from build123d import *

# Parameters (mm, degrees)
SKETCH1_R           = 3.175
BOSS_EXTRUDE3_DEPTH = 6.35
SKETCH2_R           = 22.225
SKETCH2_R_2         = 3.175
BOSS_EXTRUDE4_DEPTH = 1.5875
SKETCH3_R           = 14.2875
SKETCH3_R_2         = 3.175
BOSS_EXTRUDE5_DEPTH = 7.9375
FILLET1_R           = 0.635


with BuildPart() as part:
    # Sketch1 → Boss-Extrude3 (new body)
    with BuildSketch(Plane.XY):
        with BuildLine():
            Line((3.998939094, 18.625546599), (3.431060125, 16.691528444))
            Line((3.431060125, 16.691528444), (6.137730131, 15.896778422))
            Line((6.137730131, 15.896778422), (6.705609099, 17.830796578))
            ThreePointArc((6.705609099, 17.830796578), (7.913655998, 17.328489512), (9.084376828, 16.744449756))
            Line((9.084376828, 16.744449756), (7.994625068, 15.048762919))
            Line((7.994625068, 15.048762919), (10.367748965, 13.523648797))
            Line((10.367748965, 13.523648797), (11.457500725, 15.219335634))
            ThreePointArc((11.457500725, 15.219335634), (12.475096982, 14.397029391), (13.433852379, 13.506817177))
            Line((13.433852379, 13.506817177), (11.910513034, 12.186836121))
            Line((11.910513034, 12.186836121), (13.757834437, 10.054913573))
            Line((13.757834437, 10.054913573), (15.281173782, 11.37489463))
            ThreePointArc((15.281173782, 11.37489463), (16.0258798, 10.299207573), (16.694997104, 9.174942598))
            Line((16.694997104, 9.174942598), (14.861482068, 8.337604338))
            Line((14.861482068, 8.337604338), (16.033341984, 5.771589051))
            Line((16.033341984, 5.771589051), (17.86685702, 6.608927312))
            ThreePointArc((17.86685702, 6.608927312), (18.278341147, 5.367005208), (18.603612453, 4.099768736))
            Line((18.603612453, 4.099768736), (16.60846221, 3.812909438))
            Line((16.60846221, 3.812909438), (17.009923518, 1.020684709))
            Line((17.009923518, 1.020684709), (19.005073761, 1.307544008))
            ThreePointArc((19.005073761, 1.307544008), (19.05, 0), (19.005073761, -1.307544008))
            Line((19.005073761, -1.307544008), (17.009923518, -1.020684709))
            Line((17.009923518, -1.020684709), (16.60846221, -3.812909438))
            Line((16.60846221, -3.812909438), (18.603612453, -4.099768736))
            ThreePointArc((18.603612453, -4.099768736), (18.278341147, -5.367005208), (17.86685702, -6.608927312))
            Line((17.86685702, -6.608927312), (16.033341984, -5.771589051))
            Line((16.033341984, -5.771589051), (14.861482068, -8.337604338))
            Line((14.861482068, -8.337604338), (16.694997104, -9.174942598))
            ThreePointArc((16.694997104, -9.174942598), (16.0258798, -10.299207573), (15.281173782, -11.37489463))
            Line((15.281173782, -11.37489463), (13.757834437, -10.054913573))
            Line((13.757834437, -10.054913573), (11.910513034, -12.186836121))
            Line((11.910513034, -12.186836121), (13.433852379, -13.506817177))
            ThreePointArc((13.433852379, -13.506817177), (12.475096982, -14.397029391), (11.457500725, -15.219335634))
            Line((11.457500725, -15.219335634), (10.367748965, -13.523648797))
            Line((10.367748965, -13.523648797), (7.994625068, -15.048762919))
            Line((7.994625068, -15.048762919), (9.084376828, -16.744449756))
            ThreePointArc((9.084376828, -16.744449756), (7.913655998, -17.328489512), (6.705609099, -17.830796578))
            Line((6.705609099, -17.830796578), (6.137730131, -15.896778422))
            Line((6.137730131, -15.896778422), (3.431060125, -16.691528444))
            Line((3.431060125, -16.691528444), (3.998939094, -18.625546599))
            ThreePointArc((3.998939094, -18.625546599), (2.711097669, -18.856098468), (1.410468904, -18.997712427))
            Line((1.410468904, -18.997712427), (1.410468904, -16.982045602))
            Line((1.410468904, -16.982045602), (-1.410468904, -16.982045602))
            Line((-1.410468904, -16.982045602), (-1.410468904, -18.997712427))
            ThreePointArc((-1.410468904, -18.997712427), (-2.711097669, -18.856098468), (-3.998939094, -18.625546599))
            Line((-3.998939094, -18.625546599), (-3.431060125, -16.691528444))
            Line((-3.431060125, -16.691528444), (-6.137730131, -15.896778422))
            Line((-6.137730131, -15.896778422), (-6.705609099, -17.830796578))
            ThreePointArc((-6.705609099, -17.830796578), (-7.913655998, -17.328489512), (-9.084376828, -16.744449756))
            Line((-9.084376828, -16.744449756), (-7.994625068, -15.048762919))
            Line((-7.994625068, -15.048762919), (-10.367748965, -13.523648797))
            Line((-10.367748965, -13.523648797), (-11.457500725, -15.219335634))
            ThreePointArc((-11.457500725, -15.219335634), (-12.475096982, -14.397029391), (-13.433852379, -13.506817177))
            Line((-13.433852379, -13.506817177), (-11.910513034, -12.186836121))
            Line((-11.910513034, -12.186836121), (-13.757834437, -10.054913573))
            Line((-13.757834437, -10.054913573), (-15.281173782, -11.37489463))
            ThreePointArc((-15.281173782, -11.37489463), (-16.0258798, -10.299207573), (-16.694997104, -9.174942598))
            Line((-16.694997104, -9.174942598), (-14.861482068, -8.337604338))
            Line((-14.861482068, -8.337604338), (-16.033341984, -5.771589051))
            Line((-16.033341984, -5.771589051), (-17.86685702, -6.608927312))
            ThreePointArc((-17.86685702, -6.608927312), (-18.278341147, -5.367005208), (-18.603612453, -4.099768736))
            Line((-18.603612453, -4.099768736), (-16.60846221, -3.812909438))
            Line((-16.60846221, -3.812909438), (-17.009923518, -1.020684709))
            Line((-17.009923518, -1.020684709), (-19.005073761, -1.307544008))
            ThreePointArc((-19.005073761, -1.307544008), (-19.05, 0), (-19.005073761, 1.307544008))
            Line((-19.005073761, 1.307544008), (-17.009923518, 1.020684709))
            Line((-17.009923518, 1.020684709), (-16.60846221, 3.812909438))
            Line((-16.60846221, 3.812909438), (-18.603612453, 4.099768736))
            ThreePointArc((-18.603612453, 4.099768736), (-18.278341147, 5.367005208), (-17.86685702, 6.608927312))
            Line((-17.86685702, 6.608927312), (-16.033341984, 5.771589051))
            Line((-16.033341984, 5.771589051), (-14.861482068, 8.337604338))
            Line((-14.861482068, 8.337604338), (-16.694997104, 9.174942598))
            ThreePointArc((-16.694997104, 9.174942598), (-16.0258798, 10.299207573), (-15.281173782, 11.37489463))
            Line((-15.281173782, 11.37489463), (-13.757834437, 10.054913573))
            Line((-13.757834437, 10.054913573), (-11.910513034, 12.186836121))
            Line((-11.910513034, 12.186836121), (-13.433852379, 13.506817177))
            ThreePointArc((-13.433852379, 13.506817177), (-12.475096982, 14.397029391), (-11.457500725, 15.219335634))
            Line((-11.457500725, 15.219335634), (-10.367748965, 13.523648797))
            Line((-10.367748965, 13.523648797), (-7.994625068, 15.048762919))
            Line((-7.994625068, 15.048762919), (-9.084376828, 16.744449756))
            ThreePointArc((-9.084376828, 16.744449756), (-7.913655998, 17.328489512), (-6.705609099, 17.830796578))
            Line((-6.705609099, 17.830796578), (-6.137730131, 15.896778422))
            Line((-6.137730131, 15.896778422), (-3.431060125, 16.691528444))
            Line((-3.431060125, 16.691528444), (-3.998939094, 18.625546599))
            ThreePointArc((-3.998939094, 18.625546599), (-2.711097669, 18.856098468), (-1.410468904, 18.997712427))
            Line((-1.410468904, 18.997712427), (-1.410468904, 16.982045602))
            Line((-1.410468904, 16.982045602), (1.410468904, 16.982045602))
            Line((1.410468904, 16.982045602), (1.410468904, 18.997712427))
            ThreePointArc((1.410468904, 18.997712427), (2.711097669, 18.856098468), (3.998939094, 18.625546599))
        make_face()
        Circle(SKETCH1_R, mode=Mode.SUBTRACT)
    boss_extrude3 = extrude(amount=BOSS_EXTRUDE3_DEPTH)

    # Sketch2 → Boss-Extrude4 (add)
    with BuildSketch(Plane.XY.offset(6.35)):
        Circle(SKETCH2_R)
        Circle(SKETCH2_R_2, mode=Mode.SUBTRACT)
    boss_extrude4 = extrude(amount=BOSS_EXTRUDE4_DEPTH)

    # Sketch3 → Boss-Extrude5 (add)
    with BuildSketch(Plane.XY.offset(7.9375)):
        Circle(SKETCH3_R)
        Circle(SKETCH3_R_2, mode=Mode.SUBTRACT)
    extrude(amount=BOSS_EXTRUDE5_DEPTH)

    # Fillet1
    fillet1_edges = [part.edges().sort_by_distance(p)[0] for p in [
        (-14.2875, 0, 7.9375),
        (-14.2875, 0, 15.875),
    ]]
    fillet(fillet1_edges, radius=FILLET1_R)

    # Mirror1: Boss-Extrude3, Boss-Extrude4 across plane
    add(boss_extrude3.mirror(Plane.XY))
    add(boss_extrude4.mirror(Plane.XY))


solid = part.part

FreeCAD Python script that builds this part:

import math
import FreeCAD as App
import Part
import Sketcher
Q = App.Units.Quantity


def edges_at(feature, points):
    """Names of the edges that pass closest to the given points."""
    edges = feature.Shape.Edges
    near = lambda p: min(range(len(edges)), key=lambda i: edges[i].distToShape(Part.Vertex(*p))[0])
    return sorted({f"Edge{near(p) + 1}" for p in points})

doc = App.newDocument("Part")
body = doc.addObject("PartDesign::Body", "Body")

# Sketch on XY plane
sketch1 = body.newObject("Sketcher::SketchObject", "Sketch")
sketch1.AttachmentSupport = (doc.getObject("XY_Plane"), [""])
sketch1.MapMode = "FlatFace"
sketch1.addGeometry([
    Part.LineSegment(App.Vector(3.43106, 16.691528, 0), App.Vector(3.998939, 18.625547, 0)),  # 0
    Part.ArcOfCircle(Part.Circle(App.Vector(0, 0, 0), App.Vector(0, 0, 1), 19.05), math.radians(77.882449), math.radians(85.753914)),  # 1
    Part.LineSegment(App.Vector(1.410469, 18.997712, 0), App.Vector(1.410469, 16.982046, 0)),  # 2
    Part.LineSegment(App.Vector(1.410469, 16.982046, 0), App.Vector(-1.410469, 16.982046, 0)),  # 3
    Part.LineSegment(App.Vector(-1.410469, 16.982046, 0), App.Vector(-1.410469, 18.997712, 0)),  # 4
    Part.ArcOfCircle(Part.Circle(App.Vector(0, 0, 0), App.Vector(0, 0, 1), 19.05), math.radians(94.246086), math.radians(102.117551)),  # 5
    Part.LineSegment(App.Vector(-3.998939, 18.625547, 0), App.Vector(-3.43106, 16.691528, 0)),  # 6
    Part.LineSegment(App.Vector(-3.43106, 16.691528, 0), App.Vector(-6.13773, 15.896778, 0)),  # 7
    Part.LineSegment(App.Vector(-6.13773, 15.896778, 0), App.Vector(-6.705609, 17.830797, 0)),  # 8
    Part.ArcOfCircle(Part.Circle(App.Vector(0, 0, 0), App.Vector(0, 0, 1), 19.05), math.radians(110.609722), math.radians(118.481187)),  # 9
    Part.LineSegment(App.Vector(-9.084377, 16.74445, 0), App.Vector(-7.994625, 15.048763, 0)),  # 10
    Part.LineSegment(App.Vector(-7.994625, 15.048763, 0), App.Vector(-10.367749, 13.523649, 0)),  # 11
    Part.LineSegment(App.Vector(-10.367749, 13.523649, 0), App.Vector(-11.457501, 15.219336, 0)),  # 12
    Part.ArcOfCircle(Part.Circle(App.Vector(0, 0, 0), App.Vector(0, 0, 1), 19.05), math.radians(126.973359), math.radians(134.844823)),  # 13
    Part.LineSegment(App.Vector(-13.433852, 13.506817, 0), App.Vector(-11.910513, 12.186836, 0)),  # 14
    Part.LineSegment(App.Vector(-11.910513, 12.186836, 0), App.Vector(-13.757834, 10.054914, 0)),  # 15
    Part.LineSegment(App.Vector(-13.757834, 10.054914, 0), App.Vector(-15.281174, 11.374895, 0)),  # 16
    Part.ArcOfCircle(Part.Circle(App.Vector(0, 0, 0), App.Vector(0, 0, 1), 19.05), math.radians(143.336995), math.radians(151.20846)),  # 17
    Part.LineSegment(App.Vector(-16.694997, 9.174943, 0), App.Vector(-14.861482, 8.337604, 0)),  # 18
    Part.LineSegment(App.Vector(-14.861482, 8.337604, 0), App.Vector(-16.033342, 5.771589, 0)),  # 19
    Part.LineSegment(App.Vector(-16.033342, 5.771589, 0), App.Vector(-17.866857, 6.608927, 0)),  # 20
    Part.ArcOfCircle(Part.Circle(App.Vector(0, 0, 0), App.Vector(0, 0, 1), 19.05), math.radians(159.700631), math.radians(167.572096)),  # 21
    Part.LineSegment(App.Vector(-18.603612, 4.099769, 0), App.Vector(-16.608462, 3.812909, 0)),  # 22
    Part.LineSegment(App.Vector(-16.608462, 3.812909, 0), App.Vector(-17.009924, 1.020685, 0)),  # 23
    Part.LineSegment(App.Vector(-17.009924, 1.020685, 0), App.Vector(-19.005074, 1.307544, 0)),  # 24
    Part.ArcOfCircle(Part.Circle(App.Vector(0, 0, 0), App.Vector(0, 0, 1), 19.05), math.radians(176.064268), math.radians(183.935732)),  # 25
    Part.LineSegment(App.Vector(-19.005074, -1.307544, 0), App.Vector(-17.009924, -1.020685, 0)),  # 26
    Part.LineSegment(App.Vector(-17.009924, -1.020685, 0), App.Vector(-16.608462, -3.812909, 0)),  # 27
    Part.LineSegment(App.Vector(-16.608462, -3.812909, 0), App.Vector(-18.603612, -4.099769, 0)),  # 28
    Part.ArcOfCircle(Part.Circle(App.Vector(0, 0, 0), App.Vector(0, 0, 1), 19.05), math.radians(-167.572096), math.radians(-159.700631)),  # 29
    Part.LineSegment(App.Vector(-17.866857, -6.608927, 0), App.Vector(-16.033342, -5.771589, 0)),  # 30
    Part.LineSegment(App.Vector(-16.033342, -5.771589, 0), App.Vector(-14.861482, -8.337604, 0)),  # 31
    Part.LineSegment(App.Vector(-14.861482, -8.337604, 0), App.Vector(-16.694997, -9.174943, 0)),  # 32
    Part.ArcOfCircle(Part.Circle(App.Vector(0, 0, 0), App.Vector(0, 0, 1), 19.05), math.radians(-151.20846), math.radians(-143.336995)),  # 33
    Part.LineSegment(App.Vector(-15.281174, -11.374895, 0), App.Vector(-13.757834, -10.054914, 0)),  # 34
    Part.LineSegment(App.Vector(-13.757834, -10.054914, 0), App.Vector(-11.910513, -12.186836, 0)),  # 35
    Part.LineSegment(App.Vector(-11.910513, -12.186836, 0), App.Vector(-13.433852, -13.506817, 0)),  # 36
    Part.ArcOfCircle(Part.Circle(App.Vector(0, 0, 0), App.Vector(0, 0, 1), 19.05), math.radians(-134.844823), math.radians(-126.973359)),  # 37
    Part.LineSegment(App.Vector(-11.457501, -15.219336, 0), App.Vector(-10.367749, -13.523649, 0)),  # 38
    Part.LineSegment(App.Vector(-10.367749, -13.523649, 0), App.Vector(-7.994625, -15.048763, 0)),  # 39
    Part.LineSegment(App.Vector(-7.994625, -15.048763, 0), App.Vector(-9.084377, -16.74445, 0)),  # 40
    Part.ArcOfCircle(Part.Circle(App.Vector(0, 0, 0), App.Vector(0, 0, 1), 19.05), math.radians(-118.481187), math.radians(-110.609722)),  # 41
    Part.LineSegment(App.Vector(-6.705609, -17.830797, 0), App.Vector(-6.13773, -15.896778, 0)),  # 42
    Part.LineSegment(App.Vector(-6.13773, -15.896778, 0), App.Vector(-3.43106, -16.691528, 0)),  # 43
    Part.LineSegment(App.Vector(-3.43106, -16.691528, 0), App.Vector(-3.998939, -18.625547, 0)),  # 44
    Part.ArcOfCircle(Part.Circle(App.Vector(0, 0, 0), App.Vector(0, 0, 1), 19.05), math.radians(-102.117551), math.radians(-94.246086)),  # 45
    Part.LineSegment(App.Vector(-1.410469, -18.997712, 0), App.Vector(-1.410469, -16.982046, 0)),  # 46
    Part.LineSegment(App.Vector(-1.410469, -16.982046, 0), App.Vector(1.410469, -16.982046, 0)),  # 47
    Part.LineSegment(App.Vector(1.410469, -16.982046, 0), App.Vector(1.410469, -18.997712, 0)),  # 48
    Part.ArcOfCircle(Part.Circle(App.Vector(0, 0, 0), App.Vector(0, 0, 1), 19.05), math.radians(-85.753914), math.radians(-77.882449)),  # 49
    Part.LineSegment(App.Vector(3.998939, -18.625547, 0), App.Vector(3.43106, -16.691528, 0)),  # 50
    Part.LineSegment(App.Vector(3.43106, -16.691528, 0), App.Vector(6.13773, -15.896778, 0)),  # 51
    Part.LineSegment(App.Vector(6.13773, -15.896778, 0), App.Vector(6.705609, -17.830797, 0)),  # 52
    Part.ArcOfCircle(Part.Circle(App.Vector(0, 0, 0), App.Vector(0, 0, 1), 19.05), math.radians(-69.390278), math.radians(-61.518813)),  # 53
    Part.LineSegment(App.Vector(9.084377, -16.74445, 0), App.Vector(7.994625, -15.048763, 0)),  # 54
    Part.LineSegment(App.Vector(7.994625, -15.048763, 0), App.Vector(10.367749, -13.523649, 0)),  # 55
    Part.LineSegment(App.Vector(10.367749, -13.523649, 0), App.Vector(11.457501, -15.219336, 0)),  # 56
    Part.ArcOfCircle(Part.Circle(App.Vector(0, 0, 0), App.Vector(0, 0, 1), 19.05), math.radians(-53.026641), math.radians(-45.155177)),  # 57
    Part.LineSegment(App.Vector(13.433852, -13.506817, 0), App.Vector(11.910513, -12.186836, 0)),  # 58
    Part.LineSegment(App.Vector(11.910513, -12.186836, 0), App.Vector(13.757834, -10.054914, 0)),  # 59
    Part.LineSegment(App.Vector(13.757834, -10.054914, 0), App.Vector(15.281174, -11.374895, 0)),  # 60
    Part.ArcOfCircle(Part.Circle(App.Vector(0, 0, 0), App.Vector(0, 0, 1), 19.05), math.radians(-36.663005), math.radians(-28.79154)),  # 61
    Part.LineSegment(App.Vector(16.694997, -9.174943, 0), App.Vector(14.861482, -8.337604, 0)),  # 62
    Part.LineSegment(App.Vector(14.861482, -8.337604, 0), App.Vector(16.033342, -5.771589, 0)),  # 63
    Part.LineSegment(App.Vector(16.033342, -5.771589, 0), App.Vector(17.866857, -6.608927, 0)),  # 64
    Part.ArcOfCircle(Part.Circle(App.Vector(0, 0, 0), App.Vector(0, 0, 1), 19.05), math.radians(-20.299369), math.radians(-12.427904)),  # 65
    Part.LineSegment(App.Vector(18.603612, -4.099769, 0), App.Vector(16.608462, -3.812909, 0)),  # 66
    Part.LineSegment(App.Vector(16.608462, -3.812909, 0), App.Vector(17.009924, -1.020685, 0)),  # 67
    Part.LineSegment(App.Vector(17.009924, -1.020685, 0), App.Vector(19.005074, -1.307544, 0)),  # 68
    Part.ArcOfCircle(Part.Circle(App.Vector(0, 0, 0), App.Vector(0, 0, 1), 19.05), math.radians(-3.935732), math.radians(3.935732)),  # 69
    Part.LineSegment(App.Vector(19.005074, 1.307544, 0), App.Vector(17.009924, 1.020685, 0)),  # 70
    Part.LineSegment(App.Vector(17.009924, 1.020685, 0), App.Vector(16.608462, 3.812909, 0)),  # 71
    Part.LineSegment(App.Vector(16.608462, 3.812909, 0), App.Vector(18.603612, 4.099769, 0)),  # 72
    Part.ArcOfCircle(Part.Circle(App.Vector(0, 0, 0), App.Vector(0, 0, 1), 19.05), math.radians(12.427904), math.radians(20.299369)),  # 73
    Part.LineSegment(App.Vector(17.866857, 6.608927, 0), App.Vector(16.033342, 5.771589, 0)),  # 74
    Part.LineSegment(App.Vector(16.033342, 5.771589, 0), App.Vector(14.861482, 8.337604, 0)),  # 75
    Part.LineSegment(App.Vector(14.861482, 8.337604, 0), App.Vector(16.694997, 9.174943, 0)),  # 76
    Part.ArcOfCircle(Part.Circle(App.Vector(0, 0, 0), App.Vector(0, 0, 1), 19.05), math.radians(28.79154), math.radians(36.663005)),  # 77
    Part.LineSegment(App.Vector(15.281174, 11.374895, 0), App.Vector(13.757834, 10.054914, 0)),  # 78
    Part.LineSegment(App.Vector(13.757834, 10.054914, 0), App.Vector(11.910513, 12.186836, 0)),  # 79
    Part.LineSegment(App.Vector(11.910513, 12.186836, 0), App.Vector(13.433852, 13.506817, 0)),  # 80
    Part.ArcOfCircle(Part.Circle(App.Vector(0, 0, 0), App.Vector(0, 0, 1), 19.05), math.radians(45.155177), math.radians(53.026641)),  # 81
    Part.LineSegment(App.Vector(11.457501, 15.219336, 0), App.Vector(10.367749, 13.523649, 0)),  # 82
    Part.LineSegment(App.Vector(10.367749, 13.523649, 0), App.Vector(7.994625, 15.048763, 0)),  # 83
    Part.LineSegment(App.Vector(7.994625, 15.048763, 0), App.Vector(9.084377, 16.74445, 0)),  # 84
    Part.ArcOfCircle(Part.Circle(App.Vector(0, 0, 0), App.Vector(0, 0, 1), 19.05), math.radians(61.518813), math.radians(69.390278)),  # 85
    Part.LineSegment(App.Vector(6.705609, 17.830797, 0), App.Vector(6.13773, 15.896778, 0)),  # 86
    Part.LineSegment(App.Vector(6.13773, 15.896778, 0), App.Vector(3.43106, 16.691528, 0)),  # 87
    Part.Circle(App.Vector(0, 0, 0), App.Vector(0, 0, 1), 3.175),  # 88
], False)
sketch1.addConstraint([
    Sketcher.Constraint("Coincident", 0, 2, 1, 1),
    Sketcher.Constraint("Coincident", 1, 2, 2, 1),
    Sketcher.Constraint("Coincident", 2, 2, 3, 1),
    Sketcher.Constraint("Coincident", 3, 2, 4, 1),
    Sketcher.Constraint("Coincident", 4, 2, 5, 1),
    Sketcher.Constraint("Coincident", 5, 2, 6, 1),
    Sketcher.Constraint("Coincident", 6, 2, 7, 1),
    Sketcher.Constraint("Coincident", 7, 2, 8, 1),
    Sketcher.Constraint("Coincident", 8, 2, 9, 1),
    Sketcher.Constraint("Coincident", 9, 2, 10, 1),
    Sketcher.Constraint("Coincident", 10, 2, 11, 1),
    Sketcher.Constraint("Coincident", 11, 2, 12, 1),
    Sketcher.Constraint("Coincident", 12, 2, 13, 1),
    Sketcher.Constraint("Coincident", 13, 2, 14, 1),
    Sketcher.Constraint("Coincident", 14, 2, 15, 1),
    Sketcher.Constraint("Coincident", 15, 2, 16, 1),
    Sketcher.Constraint("Coincident", 16, 2, 17, 1),
    Sketcher.Constraint("Coincident", 17, 2, 18, 1),
    Sketcher.Constraint("Coincident", 18, 2, 19, 1),
    Sketcher.Constraint("Coincident", 19, 2, 20, 1),
    Sketcher.Constraint("Coincident", 20, 2, 21, 1),
    Sketcher.Constraint("Coincident", 21, 2, 22, 1),
    Sketcher.Constraint("Coincident", 22, 2, 23, 1),
    Sketcher.Constraint("Coincident", 23, 2, 24, 1),
    Sketcher.Constraint("Coincident", 24, 2, 25, 1),
    Sketcher.Constraint("Coincident", 25, 2, 26, 1),
    Sketcher.Constraint("Coincident", 26, 2, 27, 1),
    Sketcher.Constraint("Coincident", 27, 2, 28, 1),
    Sketcher.Constraint("Coincident", 28, 2, 29, 1),
    Sketcher.Constraint("Coincident", 29, 2, 30, 1),
    Sketcher.Constraint("Coincident", 30, 2, 31, 1),
    Sketcher.Constraint("Coincident", 31, 2, 32, 1),
    Sketcher.Constraint("Coincident", 32, 2, 33, 1),
    Sketcher.Constraint("Coincident", 33, 2, 34, 1),
    Sketcher.Constraint("Coincident", 34, 2, 35, 1),
    Sketcher.Constraint("Coincident", 35, 2, 36, 1),
    Sketcher.Constraint("Coincident", 36, 2, 37, 1),
    Sketcher.Constraint("Coincident", 37, 2, 38, 1),
    Sketcher.Constraint("Coincident", 38, 2, 39, 1),
    Sketcher.Constraint("Coincident", 39, 2, 40, 1),
    Sketcher.Constraint("Coincident", 40, 2, 41, 1),
    Sketcher.Constraint("Coincident", 41, 2, 42, 1),
    Sketcher.Constraint("Coincident", 42, 2, 43, 1),
    Sketcher.Constraint("Coincident", 43, 2, 44, 1),
    Sketcher.Constraint("Coincident", 44, 2, 45, 1),
    Sketcher.Constraint("Coincident", 45, 2, 46, 1),
    Sketcher.Constraint("Coincident", 46, 2, 47, 1),
    Sketcher.Constraint("Coincident", 47, 2, 48, 1),
    Sketcher.Constraint("Coincident", 48, 2, 49, 1),
    Sketcher.Constraint("Coincident", 49, 2, 50, 1),
    Sketcher.Constraint("Coincident", 50, 2, 51, 1),
    Sketcher.Constraint("Coincident", 51, 2, 52, 1),
    Sketcher.Constraint("Coincident", 52, 2, 53, 1),
    Sketcher.Constraint("Coincident", 53, 2, 54, 1),
    Sketcher.Constraint("Coincident", 54, 2, 55, 1),
    Sketcher.Constraint("Coincident", 55, 2, 56, 1),
    Sketcher.Constraint("Coincident", 56, 2, 57, 1),
    Sketcher.Constraint("Coincident", 57, 2, 58, 1),
    Sketcher.Constraint("Coincident", 58, 2, 59, 1),
    Sketcher.Constraint("Coincident", 59, 2, 60, 1),
    Sketcher.Constraint("Coincident", 60, 2, 61, 1),
    Sketcher.Constraint("Coincident", 61, 2, 62, 1),
    Sketcher.Constraint("Coincident", 62, 2, 63, 1),
    Sketcher.Constraint("Coincident", 63, 2, 64, 1),
    Sketcher.Constraint("Coincident", 64, 2, 65, 1),
    Sketcher.Constraint("Coincident", 65, 2, 66, 1),
    Sketcher.Constraint("Coincident", 66, 2, 67, 1),
    Sketcher.Constraint("Coincident", 67, 2, 68, 1),
    Sketcher.Constraint("Coincident", 68, 2, 69, 1),
    Sketcher.Constraint("Coincident", 69, 2, 70, 1),
    Sketcher.Constraint("Coincident", 70, 2, 71, 1),
    Sketcher.Constraint("Coincident", 71, 2, 72, 1),
    Sketcher.Constraint("Coincident", 72, 2, 73, 1),
    Sketcher.Constraint("Coincident", 73, 2, 74, 1),
    Sketcher.Constraint("Coincident", 74, 2, 75, 1),
    Sketcher.Constraint("Coincident", 75, 2, 76, 1),
    Sketcher.Constraint("Coincident", 76, 2, 77, 1),
    Sketcher.Constraint("Coincident", 77, 2, 78, 1),
    Sketcher.Constraint("Coincident", 78, 2, 79, 1),
    Sketcher.Constraint("Coincident", 79, 2, 80, 1),
    Sketcher.Constraint("Coincident", 80, 2, 81, 1),
    Sketcher.Constraint("Coincident", 81, 2, 82, 1),
    Sketcher.Constraint("Coincident", 82, 2, 83, 1),
    Sketcher.Constraint("Coincident", 83, 2, 84, 1),
    Sketcher.Constraint("Coincident", 84, 2, 85, 1),
    Sketcher.Constraint("Coincident", 85, 2, 86, 1),
    Sketcher.Constraint("Coincident", 86, 2, 87, 1),
    Sketcher.Constraint("Coincident", 87, 2, 0, 1),
    Sketcher.Constraint("Vertical", 2),
    Sketcher.Constraint("Horizontal", 3),
    Sketcher.Constraint("Vertical", 4),
    Sketcher.Constraint("Vertical", 46),
    Sketcher.Constraint("Horizontal", 47),
    Sketcher.Constraint("Vertical", 48),
    Sketcher.Constraint("Coincident", 1, 3, -1, 1),
    Sketcher.Constraint("Coincident", 5, 3, -1, 1),
    Sketcher.Constraint("Coincident", 9, 3, -1, 1),
    Sketcher.Constraint("Coincident", 13, 3, -1, 1),
    Sketcher.Constraint("Coincident", 17, 3, -1, 1),
    Sketcher.Constraint("Coincident", 21, 3, -1, 1),
    Sketcher.Constraint("Coincident", 25, 3, -1, 1),
    Sketcher.Constraint("Coincident", 29, 3, -1, 1),
    Sketcher.Constraint("Coincident", 33, 3, -1, 1),
    Sketcher.Constraint("Coincident", 37, 3, -1, 1),
    Sketcher.Constraint("Coincident", 41, 3, -1, 1),
    Sketcher.Constraint("Coincident", 45, 3, -1, 1),
    Sketcher.Constraint("Coincident", 49, 3, -1, 1),
    Sketcher.Constraint("Coincident", 53, 3, -1, 1),
    Sketcher.Constraint("Coincident", 57, 3, -1, 1),
    Sketcher.Constraint("Coincident", 61, 3, -1, 1),
    Sketcher.Constraint("Coincident", 65, 3, -1, 1),
    Sketcher.Constraint("Coincident", 69, 3, -1, 1),
    Sketcher.Constraint("Coincident", 73, 3, -1, 1),
    Sketcher.Constraint("Coincident", 77, 3, -1, 1),
    Sketcher.Constraint("Coincident", 81, 3, -1, 1),
    Sketcher.Constraint("Coincident", 85, 3, -1, 1),
    Sketcher.Constraint("Coincident", 88, 3, -1, 1),
    Sketcher.Constraint("Equal", 1, 5),
    Sketcher.Constraint("Equal", 5, 9),
    Sketcher.Constraint("Equal", 9, 13),
    Sketcher.Constraint("Equal", 13, 17),
    Sketcher.Constraint("Equal", 17, 21),
    Sketcher.Constraint("Equal", 21, 25),
    Sketcher.Constraint("Equal", 25, 29),
    Sketcher.Constraint("Equal", 29, 33),
    Sketcher.Constraint("Equal", 33, 37),
    Sketcher.Constraint("Equal", 37, 41),
    Sketcher.Constraint("Equal", 41, 45),
    Sketcher.Constraint("Equal", 45, 49),
    Sketcher.Constraint("Equal", 49, 53),
    Sketcher.Constraint("Equal", 53, 57),
    Sketcher.Constraint("Equal", 57, 61),
    Sketcher.Constraint("Equal", 61, 65),
    Sketcher.Constraint("Equal", 65, 69),
    Sketcher.Constraint("Equal", 69, 73),
    Sketcher.Constraint("Equal", 73, 77),
    Sketcher.Constraint("Equal", 77, 81),
    Sketcher.Constraint("Equal", 81, 85),
    Sketcher.Constraint("Symmetric", 2, 2, 46, 2, -1, 1),
    Sketcher.Constraint("Symmetric", 6, 2, 50, 2, -1, 1),
    Sketcher.Constraint("Symmetric", 7, 2, 51, 2, -1, 1),
    Sketcher.Constraint("Symmetric", 10, 2, 54, 2, -1, 1),
    Sketcher.Constraint("Symmetric", 11, 2, 55, 2, -1, 1),
    Sketcher.Constraint("Symmetric", 14, 2, 58, 2, -1, 1),
    Sketcher.Constraint("Symmetric", 15, 2, 59, 2, -1, 1),
    Sketcher.Constraint("Symmetric", 18, 2, 62, 2, -1, 1),
    Sketcher.Constraint("Symmetric", 19, 2, 63, 2, -1, 1),
    Sketcher.Constraint("Symmetric", 22, 2, 66, 2, -1, 1),
    Sketcher.Constraint("Symmetric", 23, 2, 67, 2, -1, 1),
    Sketcher.Constraint("Symmetric", 26, 2, 70, 2, -1, 1),
    Sketcher.Constraint("Symmetric", 27, 2, 71, 2, -1, 1),
    Sketcher.Constraint("Symmetric", 30, 2, 74, 2, -1, 1),
    Sketcher.Constraint("Symmetric", 31, 2, 75, 2, -1, 1),
    Sketcher.Constraint("Symmetric", 34, 2, 78, 2, -1, 1),
    Sketcher.Constraint("Symmetric", 35, 2, 79, 2, -1, 1),
    Sketcher.Constraint("Symmetric", 38, 2, 82, 2, -1, 1),
    Sketcher.Constraint("Symmetric", 39, 2, 83, 2, -1, 1),
    Sketcher.Constraint("Symmetric", 42, 2, 86, 2, -1, 1),
    Sketcher.Constraint("Symmetric", 43, 2, 87, 2, -1, 1),
    Sketcher.Constraint("Symmetric", 43, 2, 50, 2, -2),
    Sketcher.Constraint("Symmetric", 42, 2, 51, 2, -2),
    Sketcher.Constraint("Symmetric", 39, 2, 54, 2, -2),
    Sketcher.Constraint("Symmetric", 38, 2, 55, 2, -2),
    Sketcher.Constraint("Symmetric", 35, 2, 58, 2, -2),
    Sketcher.Constraint("Symmetric", 34, 2, 59, 2, -2),
    Sketcher.Constraint("Symmetric", 31, 2, 62, 2, -2),
    Sketcher.Constraint("Symmetric", 30, 2, 63, 2, -2),
    Sketcher.Constraint("Symmetric", 27, 2, 66, 2, -2),
    Sketcher.Constraint("Symmetric", 26, 2, 67, 2, -2),
    Sketcher.Constraint("Perpendicular", 6, 7),
    Sketcher.Constraint("Perpendicular", 7, 8),
    Sketcher.Constraint("Perpendicular", 10, 11),
    Sketcher.Constraint("Perpendicular", 11, 12),
    Sketcher.Constraint("Perpendicular", 14, 15),
    Sketcher.Constraint("Perpendicular", 15, 16),
    Sketcher.Constraint("Perpendicular", 18, 19),
    Sketcher.Constraint("Perpendicular", 19, 20),
    Sketcher.Constraint("Perpendicular", 22, 23),
    Sketcher.Constraint("Perpendicular", 23, 24),
    Sketcher.Constraint("Perpendicular", 26, 27),
    Sketcher.Constraint("Perpendicular", 27, 28),
    Sketcher.Constraint("Perpendicular", 30, 31),
    Sketcher.Constraint("Perpendicular", 31, 32),
    Sketcher.Constraint("Perpendicular", 34, 35),
    Sketcher.Constraint("Perpendicular", 35, 36),
    Sketcher.Constraint("Perpendicular", 38, 39),
    Sketcher.Constraint("Perpendicular", 39, 40),
    Sketcher.Constraint("Parallel", 0, 42),
    Sketcher.Constraint("Perpendicular", 42, 43),
    Sketcher.Constraint("Perpendicular", 43, 44),
    Sketcher.Constraint("Parallel", 8, 50),
    Sketcher.Constraint("Perpendicular", 51, 52),
    Sketcher.Constraint("Parallel", 12, 54),
    Sketcher.Constraint("Perpendicular", 55, 56),
    Sketcher.Constraint("Parallel", 16, 58),
    Sketcher.Constraint("Perpendicular", 59, 60),
    Sketcher.Constraint("Parallel", 20, 62),
    Sketcher.Constraint("Perpendicular", 63, 64),
    Sketcher.Constraint("Parallel", 24, 66),
    Sketcher.Constraint("Perpendicular", 67, 68),
    Sketcher.Constraint("Parallel", 28, 70),
    Sketcher.Constraint("Perpendicular", 71, 72),
    Sketcher.Constraint("Parallel", 32, 74),
    Sketcher.Constraint("Perpendicular", 75, 76),
    Sketcher.Constraint("Parallel", 36, 78),
    Sketcher.Constraint("Perpendicular", 79, 80),
    Sketcher.Constraint("Parallel", 40, 82),
    Sketcher.Constraint("Perpendicular", 83, 84),
    Sketcher.Constraint("Parallel", 44, 86),
    Sketcher.Constraint("Horizontal", 1, 2, 4, 2),
    Sketcher.Constraint("Horizontal", 45, 2, 48, 2),
    Sketcher.Constraint("Equal", 6, 8),
    Sketcher.Constraint("Equal", 8, 10),
    Sketcher.Constraint("Equal", 7, 11),
    Sketcher.Constraint("Equal", 10, 12),
    Sketcher.Constraint("Equal", 12, 14),
    Sketcher.Constraint("Equal", 11, 15),
    Sketcher.Constraint("Equal", 14, 16),
    Sketcher.Constraint("Equal", 16, 18),
    Sketcher.Constraint("Equal", 15, 19),
    Sketcher.Constraint("Equal", 18, 20),
    Sketcher.Constraint("Equal", 20, 22),
    Sketcher.Constraint("Equal", 19, 23),
    Sketcher.Constraint("Equal", 22, 24),
    Sketcher.Constraint("Diameter", 88, Q("0.25 in")),
    Sketcher.Constraint("Radius", 1, Q("0.75 in")),
    Sketcher.Constraint("DistanceY", -1, 1, 8, 2, Q("0.7019999 in")),
    Sketcher.Constraint("DistanceX", 12, 2, -1, 1, Q("11.457501 mm")),
    Sketcher.Constraint("DistanceX", 3, 2, 3, 1, Q("2.820938 mm")),
    Sketcher.Constraint("DistanceY", 2, 2, 2, 1, Q("2.015667 mm")),
    Sketcher.Constraint("DistanceX", -1, 1, 0, 2, Q("3.998939 mm")),
    Sketcher.Constraint("DistanceX", 6, 2, -1, 1, Q("3.43106 mm")),
    Sketcher.Constraint("DistanceX", 19, 2, -1, 1, Q("16.033342 mm")),
    Sketcher.Constraint("DistanceY", -1, 1, 21, 2, Q("4.099769 mm")),
    Sketcher.Constraint("DistanceX", 13, 2, -1, 1, Q("13.433852 mm")),
])
pad1 = body.newObject("PartDesign::Pad", "Pad")
pad1.Profile = sketch1
pad1.Length = Q("0.25 in")

# Sketch on XY plane
sketch2 = body.newObject("Sketcher::SketchObject", "Sketch001")
sketch2.AttachmentSupport = (doc.getObject("XY_Plane"), [""])
sketch2.MapMode = "FlatFace"
sketch2.AttachmentOffset = App.Placement(App.Vector(0, 0, 0.25 * 25.4), App.Rotation())
sketch2.addGeometry([
    Part.Circle(App.Vector(0, 0, 0), App.Vector(0, 0, 1), 22.225),
    Part.Circle(App.Vector(0, 0, 0), App.Vector(0, 0, 1), 3.175),
], False)
sketch2.addConstraint([
    Sketcher.Constraint("Coincident", 0, 3, -1, 1),
    Sketcher.Constraint("Coincident", 1, 3, -1, 1),
    Sketcher.Constraint("Diameter", 0, Q("1.75 in")),
    Sketcher.Constraint("Diameter", 1, Q("0.25 in")),
])
pad2 = body.newObject("PartDesign::Pad", "Pad001")
pad2.Profile = sketch2
pad2.Length = Q("0.0625 in")

# Sketch on XY plane
sketch3 = body.newObject("Sketcher::SketchObject", "Sketch002")
sketch3.AttachmentSupport = (doc.getObject("XY_Plane"), [""])
sketch3.MapMode = "FlatFace"
sketch3.AttachmentOffset = App.Placement(App.Vector(0, 0, 0.3125 * 25.4), App.Rotation())
sketch3.addGeometry([
    Part.Circle(App.Vector(0, 0, 0), App.Vector(0, 0, 1), 14.2875),
    Part.Circle(App.Vector(0, 0, 0), App.Vector(0, 0, 1), 3.175),
], False)
sketch3.addConstraint([
    Sketcher.Constraint("Coincident", 0, 3, -1, 1),
    Sketcher.Constraint("Coincident", 1, 3, -1, 1),
    Sketcher.Constraint("Diameter", 1, Q("0.25 in")),
    Sketcher.Constraint("Diameter", 0, Q("1.125 in")),
])
pad3 = body.newObject("PartDesign::Pad", "Pad002")
pad3.Profile = sketch3
pad3.Length = Q("0.3125 in")
doc.recompute()

fillet = body.newObject("PartDesign::Fillet", "Fillet")
fillet.Base = (pad3, edges_at(pad3, [(-14.287, 0, 7.938), (-14.287, 0, 15.875)]))
fillet.Radius = Q("0.025 in")
doc.recompute()

mirrored = body.newObject("PartDesign::Mirrored", "Mirrored")
mirrored.Originals = [pad1, pad2]
mirrored.MirrorPlane = (doc.getObject("XY_Plane"), [""])
body.Tip = mirrored

doc.recompute()
